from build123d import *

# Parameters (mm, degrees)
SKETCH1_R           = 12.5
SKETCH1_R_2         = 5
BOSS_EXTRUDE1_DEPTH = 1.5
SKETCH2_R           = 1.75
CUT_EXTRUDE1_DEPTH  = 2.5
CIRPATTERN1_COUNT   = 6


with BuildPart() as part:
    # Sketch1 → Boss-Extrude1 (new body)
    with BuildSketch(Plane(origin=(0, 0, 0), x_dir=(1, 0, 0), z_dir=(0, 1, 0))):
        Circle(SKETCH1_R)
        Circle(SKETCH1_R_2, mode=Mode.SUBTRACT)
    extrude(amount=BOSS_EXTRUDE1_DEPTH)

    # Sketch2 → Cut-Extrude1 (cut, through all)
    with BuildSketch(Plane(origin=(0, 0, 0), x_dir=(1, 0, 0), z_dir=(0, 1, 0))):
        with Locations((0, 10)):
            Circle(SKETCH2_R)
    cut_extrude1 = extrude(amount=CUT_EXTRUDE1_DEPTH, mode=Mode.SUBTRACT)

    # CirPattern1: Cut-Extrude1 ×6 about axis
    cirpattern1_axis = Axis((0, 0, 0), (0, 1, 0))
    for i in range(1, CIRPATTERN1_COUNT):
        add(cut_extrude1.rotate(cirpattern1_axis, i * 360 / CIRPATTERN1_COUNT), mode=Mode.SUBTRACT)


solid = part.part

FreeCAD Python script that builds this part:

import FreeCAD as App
import Part
import Sketcher
Q = App.Units.Quantity

doc = App.newDocument("Part")
body = doc.addObject("PartDesign::Body", "Body")

sketch1 = body.newObject("Sketcher::SketchObject", "Sketch")
sketch1.AttachmentSupport = (doc.getObject("XZ_Plane"), [""])
sketch1.MapMode = "FlatFace"
sketch1.addGeometry(Part.Circle(App.Vector(0, 0, 0), App.Vector(0, 0, 1), 12), False)
sketch1.addGeometry(Part.Circle(App.Vector(0, 0, 0), App.Vector(0, 0, 1), 5), False)
sketch1.addConstraint(Sketcher.Constraint("Coincident", 0, 3, -1, 1))
sketch1.addConstraint(Sketcher.Constraint("Coincident", 1, 3, -1, 1))
sketch1.addConstraint(Sketcher.Constraint("Diameter", 0, Q("25 mm")))
sketch1.addConstraint(Sketcher.Constraint("Diameter", 1, Q("10 mm")))
pad1 = body.newObject("PartDesign::Pad", "Pad")
pad1.Profile = sketch1
pad1.Length = 1.5
pad1.Reversed = True

sketch2 = body.newObject("Sketcher::SketchObject", "Sketch001")
sketch2.AttachmentSupport = (doc.getObject("XZ_Plane"), [""])
sketch2.MapMode = "FlatFace"
sketch2.addGeometry(Part.Circle(App.Vector(0, -10, 0), App.Vector(0, 0, 1), 1.8), False)
sketch2.addConstraint(Sketcher.Constraint("PointOnObject", 0, 3, -2))
sketch2.addConstraint(Sketcher.Constraint("Diameter", 0, Q("3.5 mm")))
sketch2.addConstraint(Sketcher.Constraint("DistanceY", 0, 3, -1, 1, Q("10 mm")))
pocket1 = body.newObject("PartDesign::Pocket", "Pocket")
pocket1.Profile = sketch2
pocket1.Type = "ThroughAll"
doc.recompute()

polarpattern = body.newObject("PartDesign::PolarPattern", "PolarPattern")
polarpattern.Originals = [pocket1]
polarpattern.Axis = (doc.getObject("Y_Axis"), [""])
polarpattern.Angle = 360
polarpattern.Occurrences = 6
body.Tip = polarpattern

doc.recompute()
